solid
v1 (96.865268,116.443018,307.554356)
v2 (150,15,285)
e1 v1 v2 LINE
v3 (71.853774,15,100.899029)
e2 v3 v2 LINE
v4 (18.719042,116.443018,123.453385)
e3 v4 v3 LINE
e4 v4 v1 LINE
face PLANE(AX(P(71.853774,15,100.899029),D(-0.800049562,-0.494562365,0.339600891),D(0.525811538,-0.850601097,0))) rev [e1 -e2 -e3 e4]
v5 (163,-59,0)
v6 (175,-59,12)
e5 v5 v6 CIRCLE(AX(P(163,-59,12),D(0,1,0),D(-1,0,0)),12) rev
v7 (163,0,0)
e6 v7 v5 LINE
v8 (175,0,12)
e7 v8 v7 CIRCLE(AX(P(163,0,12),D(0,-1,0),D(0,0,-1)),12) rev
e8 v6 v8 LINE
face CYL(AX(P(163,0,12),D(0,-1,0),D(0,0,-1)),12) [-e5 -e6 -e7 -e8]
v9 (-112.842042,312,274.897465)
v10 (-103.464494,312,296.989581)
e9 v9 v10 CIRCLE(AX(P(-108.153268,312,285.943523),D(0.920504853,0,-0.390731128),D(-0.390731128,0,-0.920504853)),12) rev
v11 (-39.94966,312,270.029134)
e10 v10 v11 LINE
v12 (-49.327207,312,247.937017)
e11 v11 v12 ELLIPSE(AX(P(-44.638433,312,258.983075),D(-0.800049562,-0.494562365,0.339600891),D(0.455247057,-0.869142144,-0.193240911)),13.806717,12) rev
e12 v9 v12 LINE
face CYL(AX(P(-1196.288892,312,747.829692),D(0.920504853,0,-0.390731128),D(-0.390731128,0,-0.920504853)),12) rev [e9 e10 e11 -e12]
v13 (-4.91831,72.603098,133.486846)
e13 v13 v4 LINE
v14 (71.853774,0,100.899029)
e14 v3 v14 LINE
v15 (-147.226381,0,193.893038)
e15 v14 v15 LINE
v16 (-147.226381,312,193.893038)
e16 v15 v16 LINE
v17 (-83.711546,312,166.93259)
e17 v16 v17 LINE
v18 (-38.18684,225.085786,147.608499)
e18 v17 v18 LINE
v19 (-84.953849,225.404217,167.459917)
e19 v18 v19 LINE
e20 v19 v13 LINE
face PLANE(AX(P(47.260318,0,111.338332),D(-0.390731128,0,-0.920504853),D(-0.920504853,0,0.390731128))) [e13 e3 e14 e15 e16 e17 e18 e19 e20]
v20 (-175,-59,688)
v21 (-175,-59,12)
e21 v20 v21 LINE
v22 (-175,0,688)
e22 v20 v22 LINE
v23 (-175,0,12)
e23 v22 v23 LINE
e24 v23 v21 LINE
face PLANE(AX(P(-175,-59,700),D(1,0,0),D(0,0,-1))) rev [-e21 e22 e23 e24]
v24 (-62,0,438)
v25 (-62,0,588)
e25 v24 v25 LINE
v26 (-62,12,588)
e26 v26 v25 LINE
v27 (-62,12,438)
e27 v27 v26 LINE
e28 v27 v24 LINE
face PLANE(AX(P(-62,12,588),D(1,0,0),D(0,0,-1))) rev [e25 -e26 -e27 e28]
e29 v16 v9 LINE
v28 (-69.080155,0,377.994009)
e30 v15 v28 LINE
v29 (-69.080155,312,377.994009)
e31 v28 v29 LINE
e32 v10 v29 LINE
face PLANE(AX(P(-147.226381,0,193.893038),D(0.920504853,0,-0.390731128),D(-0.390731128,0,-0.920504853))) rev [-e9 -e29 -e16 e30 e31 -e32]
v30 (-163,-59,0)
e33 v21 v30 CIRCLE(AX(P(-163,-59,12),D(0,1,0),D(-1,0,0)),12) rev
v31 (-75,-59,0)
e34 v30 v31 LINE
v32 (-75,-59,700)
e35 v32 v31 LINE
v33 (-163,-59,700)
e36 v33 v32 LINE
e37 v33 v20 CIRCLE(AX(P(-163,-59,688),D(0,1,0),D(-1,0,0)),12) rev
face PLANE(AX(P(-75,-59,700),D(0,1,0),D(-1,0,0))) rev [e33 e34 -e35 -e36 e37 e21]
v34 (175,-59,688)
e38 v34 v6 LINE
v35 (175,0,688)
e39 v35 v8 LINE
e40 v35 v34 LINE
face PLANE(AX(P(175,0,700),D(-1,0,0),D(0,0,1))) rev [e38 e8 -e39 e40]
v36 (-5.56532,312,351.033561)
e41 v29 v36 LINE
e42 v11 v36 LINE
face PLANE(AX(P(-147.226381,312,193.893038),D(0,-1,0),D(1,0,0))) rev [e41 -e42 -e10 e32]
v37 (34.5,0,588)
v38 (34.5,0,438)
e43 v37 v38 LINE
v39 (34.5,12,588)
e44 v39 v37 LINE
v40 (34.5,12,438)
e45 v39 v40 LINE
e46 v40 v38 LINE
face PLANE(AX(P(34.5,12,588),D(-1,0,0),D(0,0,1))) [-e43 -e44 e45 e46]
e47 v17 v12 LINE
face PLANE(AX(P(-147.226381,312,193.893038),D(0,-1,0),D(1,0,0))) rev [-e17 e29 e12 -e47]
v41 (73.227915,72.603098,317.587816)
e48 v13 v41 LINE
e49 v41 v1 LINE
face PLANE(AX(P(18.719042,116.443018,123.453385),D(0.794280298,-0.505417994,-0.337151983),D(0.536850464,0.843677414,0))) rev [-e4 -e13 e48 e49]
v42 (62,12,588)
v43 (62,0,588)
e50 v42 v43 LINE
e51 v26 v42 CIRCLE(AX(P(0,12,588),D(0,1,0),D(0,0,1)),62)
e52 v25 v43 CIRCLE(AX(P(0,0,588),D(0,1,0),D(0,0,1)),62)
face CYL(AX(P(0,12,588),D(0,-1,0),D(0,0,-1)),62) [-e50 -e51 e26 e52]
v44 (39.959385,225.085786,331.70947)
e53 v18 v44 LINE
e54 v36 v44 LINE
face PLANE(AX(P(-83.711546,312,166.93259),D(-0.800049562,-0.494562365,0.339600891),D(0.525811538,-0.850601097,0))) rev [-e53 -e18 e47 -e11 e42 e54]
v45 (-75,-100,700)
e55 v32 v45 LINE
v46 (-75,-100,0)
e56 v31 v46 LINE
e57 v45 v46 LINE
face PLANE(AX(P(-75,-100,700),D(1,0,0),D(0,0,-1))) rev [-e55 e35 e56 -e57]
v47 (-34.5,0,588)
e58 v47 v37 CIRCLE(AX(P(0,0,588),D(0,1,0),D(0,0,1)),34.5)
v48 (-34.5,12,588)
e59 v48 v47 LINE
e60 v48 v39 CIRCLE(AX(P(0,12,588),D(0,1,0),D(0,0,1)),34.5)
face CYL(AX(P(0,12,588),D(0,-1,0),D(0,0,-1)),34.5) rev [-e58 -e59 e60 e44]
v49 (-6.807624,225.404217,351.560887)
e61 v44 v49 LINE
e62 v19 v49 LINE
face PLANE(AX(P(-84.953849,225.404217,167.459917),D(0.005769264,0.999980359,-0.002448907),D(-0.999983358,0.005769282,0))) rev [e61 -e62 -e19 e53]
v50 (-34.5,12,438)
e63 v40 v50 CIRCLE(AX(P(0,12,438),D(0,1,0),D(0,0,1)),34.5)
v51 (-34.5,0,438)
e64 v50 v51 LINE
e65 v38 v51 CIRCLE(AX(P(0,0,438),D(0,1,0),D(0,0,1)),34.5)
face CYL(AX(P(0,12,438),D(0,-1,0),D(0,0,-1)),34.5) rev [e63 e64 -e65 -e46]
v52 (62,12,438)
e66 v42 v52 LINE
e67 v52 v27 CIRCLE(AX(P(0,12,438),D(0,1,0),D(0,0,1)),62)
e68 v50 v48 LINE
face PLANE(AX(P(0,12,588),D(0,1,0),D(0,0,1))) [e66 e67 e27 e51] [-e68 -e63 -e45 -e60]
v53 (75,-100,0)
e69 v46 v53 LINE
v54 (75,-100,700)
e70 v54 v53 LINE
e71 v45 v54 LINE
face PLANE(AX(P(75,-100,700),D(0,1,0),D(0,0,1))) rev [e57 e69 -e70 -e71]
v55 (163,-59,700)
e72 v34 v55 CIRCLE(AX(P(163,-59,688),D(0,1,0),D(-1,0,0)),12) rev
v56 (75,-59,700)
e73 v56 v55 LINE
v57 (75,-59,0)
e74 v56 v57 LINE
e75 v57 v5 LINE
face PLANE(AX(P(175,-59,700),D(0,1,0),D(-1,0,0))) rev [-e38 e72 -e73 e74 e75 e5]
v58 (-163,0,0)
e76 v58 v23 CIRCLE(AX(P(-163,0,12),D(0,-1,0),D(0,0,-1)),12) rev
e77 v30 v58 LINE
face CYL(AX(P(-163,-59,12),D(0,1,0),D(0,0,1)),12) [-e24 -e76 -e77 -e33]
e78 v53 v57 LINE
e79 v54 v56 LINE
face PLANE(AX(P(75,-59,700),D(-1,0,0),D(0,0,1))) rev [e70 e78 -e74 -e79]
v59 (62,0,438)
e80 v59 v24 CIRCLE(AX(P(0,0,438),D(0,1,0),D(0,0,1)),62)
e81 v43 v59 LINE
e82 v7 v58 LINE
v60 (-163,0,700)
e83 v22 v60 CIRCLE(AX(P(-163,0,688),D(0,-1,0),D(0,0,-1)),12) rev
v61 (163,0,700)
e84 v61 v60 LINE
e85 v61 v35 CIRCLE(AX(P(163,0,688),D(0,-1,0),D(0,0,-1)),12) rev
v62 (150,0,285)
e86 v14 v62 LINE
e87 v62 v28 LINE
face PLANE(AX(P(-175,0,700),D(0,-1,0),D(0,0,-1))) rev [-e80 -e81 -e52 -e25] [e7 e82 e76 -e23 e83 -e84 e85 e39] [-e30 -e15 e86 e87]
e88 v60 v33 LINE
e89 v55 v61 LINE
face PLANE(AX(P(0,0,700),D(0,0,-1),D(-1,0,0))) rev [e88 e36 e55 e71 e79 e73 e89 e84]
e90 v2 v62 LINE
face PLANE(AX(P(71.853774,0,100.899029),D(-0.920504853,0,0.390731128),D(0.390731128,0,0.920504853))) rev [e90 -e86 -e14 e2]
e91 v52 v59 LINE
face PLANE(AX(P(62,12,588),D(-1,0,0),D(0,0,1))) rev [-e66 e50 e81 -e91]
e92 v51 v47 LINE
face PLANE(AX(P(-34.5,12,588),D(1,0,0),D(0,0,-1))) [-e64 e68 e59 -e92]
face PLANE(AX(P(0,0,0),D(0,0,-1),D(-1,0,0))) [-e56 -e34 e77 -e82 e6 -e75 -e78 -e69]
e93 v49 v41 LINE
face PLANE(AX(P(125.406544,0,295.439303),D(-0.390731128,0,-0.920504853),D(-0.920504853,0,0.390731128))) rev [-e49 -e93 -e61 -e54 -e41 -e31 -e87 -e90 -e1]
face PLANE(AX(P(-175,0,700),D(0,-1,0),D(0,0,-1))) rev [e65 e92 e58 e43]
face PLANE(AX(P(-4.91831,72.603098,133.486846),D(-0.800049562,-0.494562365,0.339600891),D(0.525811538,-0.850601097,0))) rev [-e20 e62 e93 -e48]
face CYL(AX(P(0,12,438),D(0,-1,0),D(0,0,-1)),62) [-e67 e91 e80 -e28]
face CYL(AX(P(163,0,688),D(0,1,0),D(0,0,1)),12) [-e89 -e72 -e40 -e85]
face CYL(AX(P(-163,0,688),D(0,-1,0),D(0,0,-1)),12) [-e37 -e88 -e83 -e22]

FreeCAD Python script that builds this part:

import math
import FreeCAD as App
import Part
import Sketcher
from FreeCAD import Vector


def edges_at(feature, points):
    """Names of the edges that pass closest to the given points."""
    edges = feature.Shape.Edges
    near = lambda p: min(range(len(edges)), key=lambda i: edges[i].distToShape(Part.Vertex(*p))[0])
    return sorted({f"Edge{near(p) + 1}" for p in points})


def add_polygon(sketch, points):
    """Adds a closed chain of lines whose ends are joined by coincident constraints."""
    first, n = sketch.GeometryCount, len(points)
    for a, b in zip(points, points[1:] + points[:1]):
        sketch.addGeometry(Part.LineSegment(App.Vector(*a, 0), App.Vector(*b, 0)), False)
    for i in range(n):
        sketch.addConstraint(Sketcher.Constraint("Coincident", first + i, 2, first + (i + 1) % n, 1))

doc = App.newDocument("Part")
body = doc.addObject("PartDesign::Body", "Body")

sketch1 = body.newObject("Sketcher::SketchObject", "Sketch")
sketch1.AttachmentSupport = (doc.getObject("XY_Plane"), [""])
sketch1.MapMode = "FlatFace"
add_polygon(sketch1, [(175, 0), (-175, 0), (-175, -59), (-75, -59), (-75, -100), (75, -100), (75, -59), (175, -59)])
sketch1.addConstraint([
    Sketcher.Constraint("Horizontal", 0),
    Sketcher.Constraint("Vertical", 1),
    Sketcher.Constraint("Horizontal", 2),
    Sketcher.Constraint("Vertical", 3),
    Sketcher.Constraint("Horizontal", 4),
    Sketcher.Constraint("Vertical", 5),
    Sketcher.Constraint("Horizontal", 6),
    Sketcher.Constraint("Vertical", 7),
    Sketcher.Constraint("Symmetric", 0, 2, 7, 2, -1, 1),
    Sketcher.Constraint("Symmetric", 2, 2, 5, 2, -2),
    Sketcher.Constraint("DistanceX", 0, 2, 0, 1, 350.0),
    Sketcher.Constraint("DistanceX", 2, 1, 2, 2, 100.0),
    Sketcher.Constraint("DistanceY", 1, 2, 1, 1, 59.0),
    Sketcher.Constraint("DistanceY", 3, 2, 3, 1, 41.0),
])
pad1 = body.newObject("PartDesign::Pad", "Pad")
pad1.Profile = sketch1
pad1.Length = 700
doc.recompute()

fillet = body.newObject("PartDesign::Fillet", "Fillet")
fillet.Base = (pad1, edges_at(pad1, [
    (-175, -29.5, 0),
    (175, -29.5, 700),
    (-175, -29.5, 700),
    (175, -29.5, 0),
]))
fillet.Radius = 12

sketch2 = body.newObject("Sketcher::SketchObject", "Sketch001")
sketch2.AttachmentSupport = (doc.getObject("XZ_Plane"), [""])
sketch2.MapMode = "FlatFace"
sketch2.addGeometry([
    Part.LineSegment(Vector(-62, 438, 0), Vector(-62, 588, 0)),
    Part.ArcOfCircle(Part.Circle(Vector(0, 588, 0), Vector(0, 0, 1), 62), math.radians(0), math.radians(180)),
    Part.LineSegment(Vector(62, 588, 0), Vector(62, 438, 0)),
    Part.ArcOfCircle(Part.Circle(Vector(0, 438, 0), Vector(0, 0, 1), 62), math.radians(180), math.radians(360)),
    Part.LineSegment(Vector(-34, 588, 0), Vector(-34, 438, 0)),
    Part.ArcOfCircle(Part.Circle(Vector(0, 438, 0), Vector(0, 0, 1), 34), math.radians(180), math.radians(360)),
    Part.LineSegment(Vector(34, 438, 0), Vector(34, 588, 0)),
    Part.ArcOfCircle(Part.Circle(Vector(0, 588, 0), Vector(0, 0, 1), 34), math.radians(0), math.radians(180)),
], False)
sketch2.addConstraint([
    Sketcher.Constraint("Tangent", 0, 2, 1, 2),
    Sketcher.Constraint("Tangent", 1, 1, 2, 1),
    Sketcher.Constraint("Tangent", 2, 2, 3, 2),
    Sketcher.Constraint("Tangent", 3, 1, 0, 1),
    Sketcher.Constraint("Tangent", 4, 2, 5, 1),
    Sketcher.Constraint("Tangent", 5, 2, 6, 1),
    Sketcher.Constraint("Tangent", 6, 2, 7, 1),
    Sketcher.Constraint("Tangent", 7, 2, 4, 1),
    Sketcher.Constraint("Vertical", 0),
    Sketcher.Constraint("Vertical", 2),
    Sketcher.Constraint("Vertical", 4),
    Sketcher.Constraint("Vertical", 6),
    Sketcher.Constraint("Coincident", 5, 3, 3, 3),
    Sketcher.Constraint("PointOnObject", 1, 3, -2),
    Sketcher.Constraint("Horizontal", 7, 3, 0, 2),
    Sketcher.Constraint("Radius", 1, 62.0),
    Sketcher.Constraint("Radius", 5, 34.5),
    Sketcher.Constraint("DistanceY", 0, 1, 0, 2, 150.0),
    Sketcher.Constraint("DistanceY", -1, 1, 1, 3, 588.0),
])
pad2 = body.newObject("PartDesign::Pad", "Pad001")
pad2.Profile = sketch2
pad2.Length = 12
pad2.Reversed = True

sketch3 = body.newObject("Sketcher::SketchObject", "Sketch002")
sketch3.Placement = App.Placement(Vector(125.406544, 0, 295.439303), App.Rotation(Vector(-0.920504853, 0, 0.390731128), Vector(0, 0.999999999, 0), Vector(-0.390731128, 0, -0.920504853), "ZXY"))
add_polygon(sketch3, [(-27, 0), (211, 0), (211, 312), (142, 312), (93, 225), (144, 225), (57, 73), (31, 116), (-27, 15)])
sketch3.addConstraint([
    Sketcher.Constraint("Horizontal", 0),
    Sketcher.Constraint("Vertical", 1),
    Sketcher.Constraint("Horizontal", 2),
    Sketcher.Constraint("Vertical", 8),
    Sketcher.Constraint("PointOnObject", 0, 2, -1),
    Sketcher.Constraint("Parallel", 3, 5),
    Sketcher.Constraint("Parallel", 5, 7),
    Sketcher.Constraint("Equal", 4, 6),
    Sketcher.Constraint("DistanceX", 0, 1, 0, 2, 238.0),
    Sketcher.Constraint("DistanceX", 2, 2, 2, 1, 69.0),
    Sketcher.Constraint("DistanceY", 1, 1, 1, 2, 311.999999),
    Sketcher.Constraint("DistanceY", 8, 2, 8, 1, 15.0),
    Sketcher.Constraint("Distance", 3, 100.0),
    Sketcher.Constraint("DistanceY", 5, 2, 2, 2, 239.396902),
    Sketcher.Constraint("DistanceY", 6, 2, 4, 2, 108.9612),
    Sketcher.Constraint("DistanceX", -1, 1, 6, 2, 31.006111),
    Sketcher.Constraint("DistanceY", 3, 2, 4, 2, 0.318432),
    Sketcher.Constraint("DistanceX", 2, 2, 4, 2, 1.349589),
])
pad3 = body.newObject("PartDesign::Pad", "Pad002")
pad3.Profile = sketch3
pad3.Length = 200

sketch4 = body.newObject("Sketcher::SketchObject", "Sketch003")
sketch4.Placement = App.Placement(Vector(-194.486699, 0, 82.554705), App.Rotation(Vector(0.390731128, 0, 0.920504853), Vector(0, 0.999999999, 0), Vector(-0.920504853, 0, 0.390731128), "ZXY"))
sketch4.addGeometry([
    Part.ArcOfCircle(Part.Circle(Vector(221, 312, 0), Vector(0, 0, 1), 12), math.radians(180), math.radians(360)),
    Part.LineSegment(Vector(233, 312, 0), Vector(233, 4247, 0)),
    Part.LineSegment(Vector(233, 4247, 0), Vector(209, 4247, 0)),
    Part.LineSegment(Vector(209, 4247, 0), Vector(209, 312, 0)),
], False)
sketch4.addConstraint([
    Sketcher.Constraint("Tangent", 0, 2, 1, 1),
    Sketcher.Constraint("Coincident", 1, 2, 2, 1),
    Sketcher.Constraint("Coincident", 2, 2, 3, 1),
    Sketcher.Constraint("Tangent", 3, 2, 0, 1),
    Sketcher.Constraint("Vertical", 1),
    Sketcher.Constraint("Horizontal", 2),
    Sketcher.Constraint("Vertical", 3),
    Sketcher.Constraint("Radius", 0, 12.0),
    Sketcher.Constraint("DistanceY", -1, 1, 0, 3, 311.999999),
    Sketcher.Constraint("DistanceY", 1, 1, 1, 2, 3934.778897),
    Sketcher.Constraint("DistanceX", -1, 1, 0, 3, 220.953552),
])
pocket1 = body.newObject("PartDesign::Pocket", "Pocket")
pocket1.Profile = sketch4
pocket1.Type = "ThroughAll"
pocket1.Midplane = True

doc.recompute()
